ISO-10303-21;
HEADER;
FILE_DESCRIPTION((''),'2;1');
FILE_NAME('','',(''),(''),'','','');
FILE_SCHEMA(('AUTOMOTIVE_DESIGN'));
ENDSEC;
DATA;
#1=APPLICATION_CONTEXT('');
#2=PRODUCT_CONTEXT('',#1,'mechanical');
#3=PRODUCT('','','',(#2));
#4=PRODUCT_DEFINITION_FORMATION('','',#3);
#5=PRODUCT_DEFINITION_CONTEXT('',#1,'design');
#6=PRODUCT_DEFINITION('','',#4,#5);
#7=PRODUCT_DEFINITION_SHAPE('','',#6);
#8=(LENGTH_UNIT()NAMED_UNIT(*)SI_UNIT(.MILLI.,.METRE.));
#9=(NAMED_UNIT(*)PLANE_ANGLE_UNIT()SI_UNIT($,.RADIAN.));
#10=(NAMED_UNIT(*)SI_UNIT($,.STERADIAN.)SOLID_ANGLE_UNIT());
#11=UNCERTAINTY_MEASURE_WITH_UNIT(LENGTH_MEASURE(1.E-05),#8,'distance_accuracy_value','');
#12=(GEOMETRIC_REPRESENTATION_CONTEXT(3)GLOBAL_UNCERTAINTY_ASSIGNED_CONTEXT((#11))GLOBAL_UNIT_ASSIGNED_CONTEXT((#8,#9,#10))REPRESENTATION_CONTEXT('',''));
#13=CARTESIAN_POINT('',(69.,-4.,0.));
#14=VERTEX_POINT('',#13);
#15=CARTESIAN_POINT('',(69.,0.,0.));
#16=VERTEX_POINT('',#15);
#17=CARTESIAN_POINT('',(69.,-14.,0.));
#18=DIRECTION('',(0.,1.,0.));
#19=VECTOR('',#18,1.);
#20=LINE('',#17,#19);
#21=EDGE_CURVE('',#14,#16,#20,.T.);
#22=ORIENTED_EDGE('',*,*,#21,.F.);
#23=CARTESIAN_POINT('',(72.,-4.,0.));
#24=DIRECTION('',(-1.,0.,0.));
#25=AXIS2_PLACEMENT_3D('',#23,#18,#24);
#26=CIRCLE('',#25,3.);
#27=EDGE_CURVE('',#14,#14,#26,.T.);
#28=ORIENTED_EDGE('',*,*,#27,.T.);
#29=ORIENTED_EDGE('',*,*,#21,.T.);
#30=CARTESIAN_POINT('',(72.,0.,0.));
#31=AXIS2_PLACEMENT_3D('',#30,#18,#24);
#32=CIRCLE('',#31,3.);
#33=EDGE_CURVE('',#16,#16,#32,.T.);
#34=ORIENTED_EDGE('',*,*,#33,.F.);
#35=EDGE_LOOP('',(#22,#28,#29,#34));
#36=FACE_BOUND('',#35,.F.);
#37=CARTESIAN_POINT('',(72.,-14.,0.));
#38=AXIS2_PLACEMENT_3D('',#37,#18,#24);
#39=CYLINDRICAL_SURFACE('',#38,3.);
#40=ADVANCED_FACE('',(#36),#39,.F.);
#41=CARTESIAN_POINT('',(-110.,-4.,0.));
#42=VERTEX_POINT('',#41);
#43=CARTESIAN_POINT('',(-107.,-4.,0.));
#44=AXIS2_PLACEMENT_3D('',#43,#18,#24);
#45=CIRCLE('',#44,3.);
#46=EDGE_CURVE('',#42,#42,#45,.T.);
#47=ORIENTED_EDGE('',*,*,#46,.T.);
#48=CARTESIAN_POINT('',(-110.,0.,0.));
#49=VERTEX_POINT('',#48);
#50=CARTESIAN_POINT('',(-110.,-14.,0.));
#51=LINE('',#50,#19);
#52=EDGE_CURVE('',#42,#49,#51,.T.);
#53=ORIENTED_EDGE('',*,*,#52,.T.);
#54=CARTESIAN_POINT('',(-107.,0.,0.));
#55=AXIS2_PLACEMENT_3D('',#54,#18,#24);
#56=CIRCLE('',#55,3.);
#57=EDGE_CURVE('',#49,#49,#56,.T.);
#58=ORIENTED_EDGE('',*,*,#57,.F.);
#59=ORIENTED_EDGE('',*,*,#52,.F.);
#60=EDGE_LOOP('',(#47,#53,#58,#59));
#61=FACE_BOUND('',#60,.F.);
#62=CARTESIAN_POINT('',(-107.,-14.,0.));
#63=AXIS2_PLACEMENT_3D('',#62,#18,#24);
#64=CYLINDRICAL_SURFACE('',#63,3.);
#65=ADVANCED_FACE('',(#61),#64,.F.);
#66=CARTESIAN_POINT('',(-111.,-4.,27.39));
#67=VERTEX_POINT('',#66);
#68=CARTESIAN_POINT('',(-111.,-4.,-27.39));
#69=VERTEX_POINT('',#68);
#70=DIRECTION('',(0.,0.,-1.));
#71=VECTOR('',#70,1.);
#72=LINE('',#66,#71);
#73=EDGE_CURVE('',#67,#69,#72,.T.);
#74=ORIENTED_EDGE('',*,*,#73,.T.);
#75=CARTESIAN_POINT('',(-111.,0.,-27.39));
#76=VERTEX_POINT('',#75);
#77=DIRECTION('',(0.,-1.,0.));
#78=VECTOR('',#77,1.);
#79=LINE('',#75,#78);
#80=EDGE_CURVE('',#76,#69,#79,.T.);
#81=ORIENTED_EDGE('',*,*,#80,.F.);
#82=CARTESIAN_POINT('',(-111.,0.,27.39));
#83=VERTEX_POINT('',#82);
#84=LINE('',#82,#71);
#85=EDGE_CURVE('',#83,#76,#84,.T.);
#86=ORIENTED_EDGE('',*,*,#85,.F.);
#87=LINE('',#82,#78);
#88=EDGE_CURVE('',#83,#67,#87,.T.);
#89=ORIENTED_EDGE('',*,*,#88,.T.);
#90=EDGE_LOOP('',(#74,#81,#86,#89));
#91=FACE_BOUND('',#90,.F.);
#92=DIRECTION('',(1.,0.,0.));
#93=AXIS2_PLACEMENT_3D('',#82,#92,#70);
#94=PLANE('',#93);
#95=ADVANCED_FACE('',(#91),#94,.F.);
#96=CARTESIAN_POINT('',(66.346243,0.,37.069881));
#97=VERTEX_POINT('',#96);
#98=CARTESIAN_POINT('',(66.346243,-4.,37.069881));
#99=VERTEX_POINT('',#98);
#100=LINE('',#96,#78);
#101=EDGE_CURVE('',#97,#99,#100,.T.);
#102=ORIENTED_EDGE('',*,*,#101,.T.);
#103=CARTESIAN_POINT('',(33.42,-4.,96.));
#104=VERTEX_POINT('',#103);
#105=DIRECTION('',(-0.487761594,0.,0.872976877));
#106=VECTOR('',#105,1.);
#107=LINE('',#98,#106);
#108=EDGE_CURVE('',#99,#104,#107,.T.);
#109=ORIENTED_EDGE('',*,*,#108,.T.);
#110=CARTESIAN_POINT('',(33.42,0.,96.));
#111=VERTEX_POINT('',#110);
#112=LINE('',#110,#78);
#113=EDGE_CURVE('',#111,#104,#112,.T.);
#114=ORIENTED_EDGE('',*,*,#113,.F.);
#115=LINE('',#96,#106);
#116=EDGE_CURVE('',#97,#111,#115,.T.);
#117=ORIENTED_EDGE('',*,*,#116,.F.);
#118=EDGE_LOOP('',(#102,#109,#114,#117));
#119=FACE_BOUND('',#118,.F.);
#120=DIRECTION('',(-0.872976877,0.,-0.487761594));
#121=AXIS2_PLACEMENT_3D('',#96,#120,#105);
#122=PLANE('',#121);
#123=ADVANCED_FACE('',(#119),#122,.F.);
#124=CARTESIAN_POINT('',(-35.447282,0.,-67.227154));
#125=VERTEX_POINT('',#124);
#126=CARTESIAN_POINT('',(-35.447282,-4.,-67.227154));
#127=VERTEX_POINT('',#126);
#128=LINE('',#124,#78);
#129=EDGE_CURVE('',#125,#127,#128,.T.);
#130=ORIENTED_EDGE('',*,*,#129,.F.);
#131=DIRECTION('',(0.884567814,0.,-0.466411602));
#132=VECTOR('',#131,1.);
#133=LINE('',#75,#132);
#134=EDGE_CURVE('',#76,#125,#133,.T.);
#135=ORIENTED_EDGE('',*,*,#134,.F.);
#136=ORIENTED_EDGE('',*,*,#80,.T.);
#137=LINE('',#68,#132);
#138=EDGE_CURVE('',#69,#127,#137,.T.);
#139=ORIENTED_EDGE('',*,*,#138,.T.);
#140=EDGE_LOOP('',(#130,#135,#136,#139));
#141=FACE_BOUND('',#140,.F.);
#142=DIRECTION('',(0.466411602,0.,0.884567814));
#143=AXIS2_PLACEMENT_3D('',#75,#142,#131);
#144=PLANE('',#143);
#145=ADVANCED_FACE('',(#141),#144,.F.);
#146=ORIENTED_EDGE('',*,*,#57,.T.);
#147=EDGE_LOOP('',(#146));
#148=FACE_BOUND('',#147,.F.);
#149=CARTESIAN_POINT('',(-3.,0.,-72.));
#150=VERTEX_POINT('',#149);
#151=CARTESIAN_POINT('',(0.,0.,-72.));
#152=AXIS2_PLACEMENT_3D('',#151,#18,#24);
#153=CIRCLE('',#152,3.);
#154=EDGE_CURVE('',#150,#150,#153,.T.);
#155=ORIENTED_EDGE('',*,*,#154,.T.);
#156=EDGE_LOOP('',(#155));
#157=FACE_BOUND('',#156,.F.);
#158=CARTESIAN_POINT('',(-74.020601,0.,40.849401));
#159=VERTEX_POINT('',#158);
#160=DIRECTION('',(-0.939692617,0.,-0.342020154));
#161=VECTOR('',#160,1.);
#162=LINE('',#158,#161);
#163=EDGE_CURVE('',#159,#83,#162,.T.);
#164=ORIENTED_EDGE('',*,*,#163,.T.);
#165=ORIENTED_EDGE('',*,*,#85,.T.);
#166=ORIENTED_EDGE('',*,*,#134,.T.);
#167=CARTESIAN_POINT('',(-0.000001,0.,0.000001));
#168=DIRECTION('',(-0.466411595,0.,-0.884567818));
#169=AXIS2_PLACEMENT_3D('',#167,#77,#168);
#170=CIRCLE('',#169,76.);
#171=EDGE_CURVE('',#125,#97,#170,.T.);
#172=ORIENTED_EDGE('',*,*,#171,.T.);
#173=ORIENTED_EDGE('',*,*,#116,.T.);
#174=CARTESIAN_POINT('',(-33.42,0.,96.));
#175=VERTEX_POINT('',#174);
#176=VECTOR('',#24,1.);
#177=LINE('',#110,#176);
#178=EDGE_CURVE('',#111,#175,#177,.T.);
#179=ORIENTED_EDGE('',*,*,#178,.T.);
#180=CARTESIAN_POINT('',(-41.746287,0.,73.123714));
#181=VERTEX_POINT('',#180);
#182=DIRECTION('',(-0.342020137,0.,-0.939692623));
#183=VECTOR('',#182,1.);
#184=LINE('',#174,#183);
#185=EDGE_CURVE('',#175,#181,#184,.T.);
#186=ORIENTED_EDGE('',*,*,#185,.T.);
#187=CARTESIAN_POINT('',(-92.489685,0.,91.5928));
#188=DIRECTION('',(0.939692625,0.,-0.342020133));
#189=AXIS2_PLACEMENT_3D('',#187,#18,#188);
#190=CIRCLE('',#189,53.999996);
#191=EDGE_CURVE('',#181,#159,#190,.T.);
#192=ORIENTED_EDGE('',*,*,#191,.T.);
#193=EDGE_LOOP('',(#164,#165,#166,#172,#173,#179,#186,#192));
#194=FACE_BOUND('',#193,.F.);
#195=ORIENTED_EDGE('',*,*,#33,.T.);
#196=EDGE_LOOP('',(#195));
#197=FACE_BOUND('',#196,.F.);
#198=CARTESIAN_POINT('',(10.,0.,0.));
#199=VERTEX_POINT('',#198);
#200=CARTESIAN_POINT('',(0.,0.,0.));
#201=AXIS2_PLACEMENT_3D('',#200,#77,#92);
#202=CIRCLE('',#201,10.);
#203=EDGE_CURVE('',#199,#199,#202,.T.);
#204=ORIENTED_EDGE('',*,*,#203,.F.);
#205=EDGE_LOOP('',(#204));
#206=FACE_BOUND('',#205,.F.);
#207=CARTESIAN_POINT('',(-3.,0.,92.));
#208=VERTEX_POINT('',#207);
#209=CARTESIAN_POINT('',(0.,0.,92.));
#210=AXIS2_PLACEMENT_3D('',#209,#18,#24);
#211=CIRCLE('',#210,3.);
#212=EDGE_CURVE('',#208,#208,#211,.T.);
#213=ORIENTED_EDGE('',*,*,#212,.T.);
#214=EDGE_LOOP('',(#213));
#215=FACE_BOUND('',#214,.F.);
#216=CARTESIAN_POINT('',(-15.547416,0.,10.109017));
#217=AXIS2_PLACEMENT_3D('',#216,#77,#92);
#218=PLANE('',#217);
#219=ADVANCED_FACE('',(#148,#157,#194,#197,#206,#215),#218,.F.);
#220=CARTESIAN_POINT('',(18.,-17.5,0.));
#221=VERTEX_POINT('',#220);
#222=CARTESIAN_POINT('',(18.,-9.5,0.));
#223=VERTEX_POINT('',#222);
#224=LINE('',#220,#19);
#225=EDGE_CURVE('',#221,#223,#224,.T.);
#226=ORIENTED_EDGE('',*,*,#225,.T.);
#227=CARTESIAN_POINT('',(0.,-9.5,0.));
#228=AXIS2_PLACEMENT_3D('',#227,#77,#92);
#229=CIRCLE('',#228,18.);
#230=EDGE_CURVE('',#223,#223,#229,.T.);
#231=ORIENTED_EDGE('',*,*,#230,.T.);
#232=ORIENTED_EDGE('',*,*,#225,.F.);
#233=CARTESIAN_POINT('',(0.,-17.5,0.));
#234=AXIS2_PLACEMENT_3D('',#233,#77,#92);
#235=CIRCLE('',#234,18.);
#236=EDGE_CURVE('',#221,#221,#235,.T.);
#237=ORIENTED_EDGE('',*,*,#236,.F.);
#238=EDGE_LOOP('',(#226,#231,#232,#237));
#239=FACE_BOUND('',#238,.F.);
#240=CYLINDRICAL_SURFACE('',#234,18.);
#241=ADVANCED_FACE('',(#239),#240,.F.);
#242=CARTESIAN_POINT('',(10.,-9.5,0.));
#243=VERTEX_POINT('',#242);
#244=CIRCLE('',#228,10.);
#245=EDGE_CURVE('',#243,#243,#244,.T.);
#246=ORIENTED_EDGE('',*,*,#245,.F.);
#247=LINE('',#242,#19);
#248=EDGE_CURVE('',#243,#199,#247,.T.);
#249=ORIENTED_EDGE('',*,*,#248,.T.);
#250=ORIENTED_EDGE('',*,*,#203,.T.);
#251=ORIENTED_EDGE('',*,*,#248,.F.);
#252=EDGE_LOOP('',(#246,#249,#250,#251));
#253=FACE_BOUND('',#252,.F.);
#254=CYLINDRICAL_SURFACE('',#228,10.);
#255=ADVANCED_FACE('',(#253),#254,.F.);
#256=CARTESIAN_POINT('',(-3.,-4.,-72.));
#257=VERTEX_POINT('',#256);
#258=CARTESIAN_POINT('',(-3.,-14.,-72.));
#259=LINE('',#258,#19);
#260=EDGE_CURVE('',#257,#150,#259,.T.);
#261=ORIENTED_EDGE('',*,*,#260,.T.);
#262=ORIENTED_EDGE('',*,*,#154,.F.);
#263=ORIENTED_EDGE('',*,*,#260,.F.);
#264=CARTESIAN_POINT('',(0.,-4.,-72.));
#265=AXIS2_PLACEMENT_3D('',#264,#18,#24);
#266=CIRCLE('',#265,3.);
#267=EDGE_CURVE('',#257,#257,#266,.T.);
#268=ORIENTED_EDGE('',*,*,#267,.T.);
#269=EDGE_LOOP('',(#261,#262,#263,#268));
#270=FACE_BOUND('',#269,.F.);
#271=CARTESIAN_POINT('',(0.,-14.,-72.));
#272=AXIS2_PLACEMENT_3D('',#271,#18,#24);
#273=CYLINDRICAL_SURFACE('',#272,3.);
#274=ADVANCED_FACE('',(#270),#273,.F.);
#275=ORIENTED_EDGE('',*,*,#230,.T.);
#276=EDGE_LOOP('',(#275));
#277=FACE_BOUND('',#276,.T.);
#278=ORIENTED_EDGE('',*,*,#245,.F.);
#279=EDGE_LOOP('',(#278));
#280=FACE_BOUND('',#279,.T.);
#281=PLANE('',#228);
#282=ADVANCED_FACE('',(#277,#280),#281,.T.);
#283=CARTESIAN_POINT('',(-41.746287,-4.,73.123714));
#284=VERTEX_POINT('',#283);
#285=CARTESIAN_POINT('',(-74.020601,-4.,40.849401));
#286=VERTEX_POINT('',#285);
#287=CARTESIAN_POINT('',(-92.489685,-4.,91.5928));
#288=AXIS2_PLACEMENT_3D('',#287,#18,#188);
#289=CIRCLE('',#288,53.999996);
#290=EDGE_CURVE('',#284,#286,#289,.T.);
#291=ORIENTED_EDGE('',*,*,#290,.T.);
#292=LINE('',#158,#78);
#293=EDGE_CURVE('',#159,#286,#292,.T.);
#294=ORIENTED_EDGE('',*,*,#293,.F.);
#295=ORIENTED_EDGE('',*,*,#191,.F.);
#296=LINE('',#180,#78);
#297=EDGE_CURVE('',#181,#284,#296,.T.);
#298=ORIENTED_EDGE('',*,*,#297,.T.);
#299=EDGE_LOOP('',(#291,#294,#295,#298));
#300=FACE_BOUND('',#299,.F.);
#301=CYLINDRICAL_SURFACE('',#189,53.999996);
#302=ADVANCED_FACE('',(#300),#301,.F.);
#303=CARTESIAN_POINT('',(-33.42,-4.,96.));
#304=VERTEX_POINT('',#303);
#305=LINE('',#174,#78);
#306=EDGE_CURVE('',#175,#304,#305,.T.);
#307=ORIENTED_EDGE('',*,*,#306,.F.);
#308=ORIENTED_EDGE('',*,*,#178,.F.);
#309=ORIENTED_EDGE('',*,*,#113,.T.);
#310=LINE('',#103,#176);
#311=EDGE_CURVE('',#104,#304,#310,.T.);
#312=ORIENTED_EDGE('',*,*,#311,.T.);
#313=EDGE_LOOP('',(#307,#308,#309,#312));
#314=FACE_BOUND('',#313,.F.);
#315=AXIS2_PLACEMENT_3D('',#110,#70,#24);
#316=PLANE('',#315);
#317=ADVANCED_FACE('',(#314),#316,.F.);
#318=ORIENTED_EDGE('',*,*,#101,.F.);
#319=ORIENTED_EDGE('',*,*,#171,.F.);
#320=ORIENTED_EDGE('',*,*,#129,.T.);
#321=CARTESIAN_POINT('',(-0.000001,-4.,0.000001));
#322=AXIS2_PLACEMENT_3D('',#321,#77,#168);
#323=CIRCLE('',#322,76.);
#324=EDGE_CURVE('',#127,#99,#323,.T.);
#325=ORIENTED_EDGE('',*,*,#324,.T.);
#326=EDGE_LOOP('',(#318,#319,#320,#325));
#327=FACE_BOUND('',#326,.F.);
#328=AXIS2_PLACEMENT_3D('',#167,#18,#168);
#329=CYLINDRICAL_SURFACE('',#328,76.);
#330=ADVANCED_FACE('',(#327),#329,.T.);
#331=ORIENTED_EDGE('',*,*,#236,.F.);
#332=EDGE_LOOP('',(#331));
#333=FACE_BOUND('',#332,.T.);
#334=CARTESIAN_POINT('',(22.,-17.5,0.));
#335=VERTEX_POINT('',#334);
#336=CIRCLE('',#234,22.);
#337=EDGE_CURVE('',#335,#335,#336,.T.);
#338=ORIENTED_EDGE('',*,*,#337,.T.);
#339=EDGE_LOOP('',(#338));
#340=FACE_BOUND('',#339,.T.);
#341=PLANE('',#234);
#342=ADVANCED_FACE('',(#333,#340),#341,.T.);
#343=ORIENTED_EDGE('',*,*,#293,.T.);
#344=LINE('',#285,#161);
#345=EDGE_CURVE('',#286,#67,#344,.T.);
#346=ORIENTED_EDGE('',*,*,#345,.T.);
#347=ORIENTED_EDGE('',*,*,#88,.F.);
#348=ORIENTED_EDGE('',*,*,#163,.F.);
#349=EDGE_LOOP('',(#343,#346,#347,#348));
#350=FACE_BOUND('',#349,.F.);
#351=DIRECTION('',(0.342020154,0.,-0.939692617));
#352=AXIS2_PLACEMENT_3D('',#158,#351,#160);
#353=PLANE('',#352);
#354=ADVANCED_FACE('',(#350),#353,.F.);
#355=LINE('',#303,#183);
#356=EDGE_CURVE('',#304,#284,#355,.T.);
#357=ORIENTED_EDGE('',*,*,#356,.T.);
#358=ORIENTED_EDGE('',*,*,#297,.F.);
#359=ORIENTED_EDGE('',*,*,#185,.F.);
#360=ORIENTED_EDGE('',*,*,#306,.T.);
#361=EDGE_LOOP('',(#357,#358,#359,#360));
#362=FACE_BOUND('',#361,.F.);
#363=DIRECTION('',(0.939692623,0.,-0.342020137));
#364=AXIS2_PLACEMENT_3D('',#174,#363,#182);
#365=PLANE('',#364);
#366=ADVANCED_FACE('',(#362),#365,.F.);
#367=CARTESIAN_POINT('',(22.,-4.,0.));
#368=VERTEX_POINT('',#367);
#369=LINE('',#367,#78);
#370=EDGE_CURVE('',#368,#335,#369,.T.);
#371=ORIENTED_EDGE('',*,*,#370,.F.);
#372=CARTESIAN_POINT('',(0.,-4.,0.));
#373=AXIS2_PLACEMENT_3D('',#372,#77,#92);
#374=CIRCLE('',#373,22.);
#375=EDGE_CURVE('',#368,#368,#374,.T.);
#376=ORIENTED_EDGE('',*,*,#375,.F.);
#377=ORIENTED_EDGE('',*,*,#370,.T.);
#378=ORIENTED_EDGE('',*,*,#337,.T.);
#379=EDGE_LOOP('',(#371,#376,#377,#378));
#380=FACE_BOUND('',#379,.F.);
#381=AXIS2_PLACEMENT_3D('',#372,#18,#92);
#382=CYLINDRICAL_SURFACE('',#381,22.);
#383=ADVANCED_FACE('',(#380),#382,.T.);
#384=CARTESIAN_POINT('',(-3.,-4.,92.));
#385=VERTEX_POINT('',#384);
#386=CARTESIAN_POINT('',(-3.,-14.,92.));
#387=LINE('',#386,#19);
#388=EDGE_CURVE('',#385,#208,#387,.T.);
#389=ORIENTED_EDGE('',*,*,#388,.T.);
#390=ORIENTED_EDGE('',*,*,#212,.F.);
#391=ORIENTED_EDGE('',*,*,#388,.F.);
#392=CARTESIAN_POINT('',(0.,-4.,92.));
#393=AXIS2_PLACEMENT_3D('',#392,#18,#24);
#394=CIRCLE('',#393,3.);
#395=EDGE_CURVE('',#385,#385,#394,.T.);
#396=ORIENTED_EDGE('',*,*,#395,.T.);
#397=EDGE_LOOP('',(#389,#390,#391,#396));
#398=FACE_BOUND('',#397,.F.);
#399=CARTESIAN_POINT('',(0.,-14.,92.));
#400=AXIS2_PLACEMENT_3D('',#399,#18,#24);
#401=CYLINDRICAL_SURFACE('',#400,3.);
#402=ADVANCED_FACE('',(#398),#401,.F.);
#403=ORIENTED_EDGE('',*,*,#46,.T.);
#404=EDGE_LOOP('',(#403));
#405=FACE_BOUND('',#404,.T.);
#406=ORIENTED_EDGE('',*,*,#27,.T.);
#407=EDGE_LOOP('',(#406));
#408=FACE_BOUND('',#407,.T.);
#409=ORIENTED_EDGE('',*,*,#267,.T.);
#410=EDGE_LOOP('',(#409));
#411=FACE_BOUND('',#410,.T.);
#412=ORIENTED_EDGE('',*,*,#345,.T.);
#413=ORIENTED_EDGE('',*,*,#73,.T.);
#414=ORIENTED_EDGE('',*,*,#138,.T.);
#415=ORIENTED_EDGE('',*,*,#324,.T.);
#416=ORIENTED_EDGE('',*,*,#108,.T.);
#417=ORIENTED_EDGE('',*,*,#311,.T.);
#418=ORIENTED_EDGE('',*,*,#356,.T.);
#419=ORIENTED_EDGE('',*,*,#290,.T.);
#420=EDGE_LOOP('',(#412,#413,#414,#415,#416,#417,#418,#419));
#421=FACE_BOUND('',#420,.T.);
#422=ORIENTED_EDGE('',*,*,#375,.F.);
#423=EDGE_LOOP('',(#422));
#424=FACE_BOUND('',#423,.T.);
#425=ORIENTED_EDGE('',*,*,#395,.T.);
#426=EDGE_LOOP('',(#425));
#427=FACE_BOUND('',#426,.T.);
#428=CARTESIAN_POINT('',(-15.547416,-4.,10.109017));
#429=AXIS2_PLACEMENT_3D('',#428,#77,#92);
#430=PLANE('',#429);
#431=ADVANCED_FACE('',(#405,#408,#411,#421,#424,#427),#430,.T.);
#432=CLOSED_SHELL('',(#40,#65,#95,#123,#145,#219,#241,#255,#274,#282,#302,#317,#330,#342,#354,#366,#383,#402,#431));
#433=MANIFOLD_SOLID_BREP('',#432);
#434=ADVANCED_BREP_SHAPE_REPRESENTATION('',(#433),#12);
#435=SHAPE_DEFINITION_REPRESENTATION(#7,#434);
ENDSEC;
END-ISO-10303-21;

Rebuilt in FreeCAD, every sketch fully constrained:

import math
import FreeCAD as App
import Part
import Sketcher
from FreeCAD import Vector
Q = App.Units.Quantity

doc = App.newDocument("Part")
body = doc.addObject("PartDesign::Body", "Body")

sketch1 = body.newObject("Sketcher::SketchObject", "Sketch")
sketch1.AttachmentSupport = (doc.getObject("XZ_Plane"), [""])
sketch1.MapMode = "FlatFace"
sketch1.addGeometry(Part.LineSegment(Vector(33, 96, 0), Vector(-33, 96, 0)), False)
sketch1.addGeometry(Part.LineSegment(Vector(-33, 96, 0), Vector(-42, 73, 0)), False)
sketch1.addGeometry(Part.ArcOfCircle(Part.Circle(Vector(-92, 92, 0), Vector(0, 0, 1), 54), math.radians(-70), math.radians(-20)), False)
sketch1.addGeometry(Part.LineSegment(Vector(-74, 41, 0), Vector(-111, 27, 0)), False)
sketch1.addGeometry(Part.LineSegment(Vector(-111, 27, 0), Vector(-111, -27, 0)), False)
sketch1.addGeometry(Part.LineSegment(Vector(-111, -27, 0), Vector(-35, -67, 0)), False)
sketch1.addGeometry(Part.ArcOfCircle(Part.Circle(Vector(0, 0, 0), Vector(0, 0, 1), 76), math.radians(-118), math.radians(29)), False)
sketch1.addGeometry(Part.LineSegment(Vector(66, 37, 0), Vector(33, 96, 0)), False)
sketch1.addConstraint(Sketcher.Constraint("Coincident", 0, 2, 1, 1))
sketch1.addConstraint(Sketcher.Constraint("Tangent", 1, 2, 2, 2))
sketch1.addConstraint(Sketcher.Constraint("Tangent", 2, 1, 3, 1))
sketch1.addConstraint(Sketcher.Constraint("Coincident", 3, 2, 4, 1))
sketch1.addConstraint(Sketcher.Constraint("Coincident", 4, 2, 5, 1))
sketch1.addConstraint(Sketcher.Constraint("Tangent", 5, 2, 6, 1))
sketch1.addConstraint(Sketcher.Constraint("Tangent", 6, 2, 7, 1))
sketch1.addConstraint(Sketcher.Constraint("Coincident", 7, 2, 0, 1))
sketch1.addConstraint(Sketcher.Constraint("Horizontal", 0))
sketch1.addConstraint(Sketcher.Constraint("Vertical", 4))
sketch1.addConstraint(Sketcher.Constraint("Coincident", 6, 3, -1, 1))
sketch1.addConstraint(Sketcher.Constraint("Radius", 6, 76.0))
sketch1.addConstraint(Sketcher.Constraint("Angle", 1, Q("-110 deg")))
sketch1.addConstraint(Sketcher.Constraint("Angle", 3, Q("-159.999999 deg")))
sketch1.addConstraint(Sketcher.Constraint("DistanceY", -1, 1, 0, 2, 96.0))
sketch1.addConstraint(Sketcher.Constraint("DistanceX", 3, 2, -1, 1, 111.0))
sketch1.addConstraint(Sketcher.Constraint("DistanceX", 0, 2, 0, 1, 66.84))
sketch1.addConstraint(Sketcher.Constraint("DistanceY", 4, 2, 4, 1, 54.78))
sketch1.addConstraint(Sketcher.Constraint("DistanceX", 0, 2, -1, 1, 33.42))
sketch1.addConstraint(Sketcher.Constraint("DistanceY", -1, 1, 3, 2, 27.39))
sketch1.addConstraint(Sketcher.Constraint("Radius", 2, 53.999996))
pad1 = body.newObject("PartDesign::Pad", "Pad")
pad1.Profile = sketch1
pad1.Length = 4

sketch2 = body.newObject("Sketcher::SketchObject", "Sketch001")
sketch2.AttachmentSupport = (doc.getObject("XZ_Plane"), [""])
sketch2.MapMode = "FlatFace"
sketch2.AttachmentOffset = App.Placement(Vector(0, 0, 4), App.Rotation())
sketch2.addGeometry(Part.Circle(Vector(0, 92, 0), Vector(0, 0, 1), 3), False)
sketch2.addGeometry(Part.Circle(Vector(-107, 0, 0), Vector(0, 0, 1), 3), False)
sketch2.addGeometry(Part.Circle(Vector(0, -72, 0), Vector(0, 0, 1), 3), False)
sketch2.addGeometry(Part.Circle(Vector(72, 0, 0), Vector(0, 0, 1), 3), False)
sketch2.addConstraint(Sketcher.Constraint("Equal", 0, 1))
sketch2.addConstraint(Sketcher.Constraint("Equal", 1, 2))
sketch2.addConstraint(Sketcher.Constraint("Equal", 2, 3))
sketch2.addConstraint(Sketcher.Constraint("PointOnObject", 0, 3, -2))
sketch2.addConstraint(Sketcher.Constraint("PointOnObject", 1, 3, -1))
sketch2.addConstraint(Sketcher.Constraint("PointOnObject", 2, 3, -2))
sketch2.addConstraint(Sketcher.Constraint("PointOnObject", 3, 3, -1))
sketch2.addConstraint(Sketcher.Constraint("Diameter", 0, 6.0))
sketch2.addConstraint(Sketcher.Constraint("DistanceY", -1, 1, 0, 3, 92.0))
sketch2.addConstraint(Sketcher.Constraint("DistanceX", 1, 3, -1, 1, 107.0))
sketch2.addConstraint(Sketcher.Constraint("DistanceY", 2, 3, -1, 1, 72.0))
sketch2.addConstraint(Sketcher.Constraint("DistanceX", -1, 1, 3, 3, 72.0))
doc.recompute()
hole = body.newObject("PartDesign::Hole", "Hole")
hole.Profile = sketch2
hole.ThreadType = "None"
hole.Diameter = 6
hole.DepthType = "Dimension"
hole.Depth = 10
hole.DrillPoint = "Flat"

sketch3 = body.newObject("Sketcher::SketchObject", "Sketch002")
sketch3.AttachmentSupport = (doc.getObject("XZ_Plane"), [""])
sketch3.MapMode = "FlatFace"
sketch3.AttachmentOffset = App.Placement(Vector(0, 0, 4), App.Rotation())
sketch3.addGeometry(Part.Circle(Vector(0, 0, 0), Vector(0, 0, 1), 22), False)
sketch3.addConstraint(Sketcher.Constraint("Coincident", 0, 3, -1, 1))
sketch3.addConstraint(Sketcher.Constraint("Diameter", 0, 44.0))
pad2 = body.newObject("PartDesign::Pad", "Pad001")
pad2.Profile = sketch3
pad2.Length = 13.5

sketch4 = body.newObject("Sketcher::SketchObject", "Sketch003")
sketch4.AttachmentSupport = (doc.getObject("XZ_Plane"), [""])
sketch4.MapMode = "FlatFace"
sketch4.AttachmentOffset = App.Placement(Vector(0, 0, 17.5), App.Rotation())
sketch4.addGeometry(Part.Circle(Vector(0, 0, 0), Vector(0, 0, 1), 18), False)
sketch4.addConstraint(Sketcher.Constraint("Coincident", 0, 3, -1, 1))
sketch4.addConstraint(Sketcher.Constraint("Diameter", 0, 36.0))
pocket1 = body.newObject("PartDesign::Pocket", "Pocket")
pocket1.Profile = sketch4
pocket1.Length = 8

sketch5 = body.newObject("Sketcher::SketchObject", "Sketch004")
sketch5.AttachmentSupport = (doc.getObject("XZ_Plane"), [""])
sketch5.MapMode = "FlatFace"
sketch5.AttachmentOffset = App.Placement(Vector(0, 0, 9.5), App.Rotation())
sketch5.addGeometry(Part.Circle(Vector(0, 0, 0), Vector(0, 0, 1), 10), False)
sketch5.addConstraint(Sketcher.Constraint("Coincident", 0, 3, -1, 1))
sketch5.addConstraint(Sketcher.Constraint("Diameter", 0, 20.0))
pocket2 = body.newObject("PartDesign::Pocket", "Pocket001")
pocket2.Profile = sketch5
pocket2.Length = 25

doc.recompute()
